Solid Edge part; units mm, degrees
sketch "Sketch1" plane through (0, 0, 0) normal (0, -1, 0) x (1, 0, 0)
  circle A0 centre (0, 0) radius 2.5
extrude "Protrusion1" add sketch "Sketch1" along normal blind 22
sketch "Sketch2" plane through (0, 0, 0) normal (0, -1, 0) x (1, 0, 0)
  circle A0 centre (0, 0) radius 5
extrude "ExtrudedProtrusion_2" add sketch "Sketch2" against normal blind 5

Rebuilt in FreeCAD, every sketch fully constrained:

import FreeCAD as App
import Part
import Sketcher

V = App.Vector

doc = App.newDocument("Part")
body = doc.addObject("PartDesign::Body", "Body")

sketch1 = body.newObject("Sketcher::SketchObject", "Sketch")
sketch1.AttachmentSupport = (doc.getObject("XZ_Plane"), [""])
sketch1.MapMode = "FlatFace"
sketch1.addGeometry(Part.Circle(V(0, 0, 0), V(0, 0, 1), 2.5), False)
sketch1.addConstraint([
    Sketcher.Constraint("Coincident", 0, 3, -1, 1),
    Sketcher.Constraint("Diameter", 0, 5.0),
])
pad1 = body.newObject("PartDesign::Pad", "Pad")
pad1.Profile = sketch1
pad1.Length = 22

sketch2 = body.newObject("Sketcher::SketchObject", "Sketch001")
sketch2.AttachmentSupport = (doc.getObject("XZ_Plane"), [""])
sketch2.MapMode = "FlatFace"
sketch2.addGeometry(Part.Circle(V(0, 0, 0), V(0, 0, 1), 5), False)
sketch2.addConstraint([
    Sketcher.Constraint("Coincident", 0, 3, -1, 1),
    Sketcher.Constraint("Diameter", 0, 10.0),
])
pad2 = body.newObject("PartDesign::Pad", "Pad001")
pad2.Profile = sketch2
pad2.Length = 5
pad2.Reversed = True

doc.recompute()
